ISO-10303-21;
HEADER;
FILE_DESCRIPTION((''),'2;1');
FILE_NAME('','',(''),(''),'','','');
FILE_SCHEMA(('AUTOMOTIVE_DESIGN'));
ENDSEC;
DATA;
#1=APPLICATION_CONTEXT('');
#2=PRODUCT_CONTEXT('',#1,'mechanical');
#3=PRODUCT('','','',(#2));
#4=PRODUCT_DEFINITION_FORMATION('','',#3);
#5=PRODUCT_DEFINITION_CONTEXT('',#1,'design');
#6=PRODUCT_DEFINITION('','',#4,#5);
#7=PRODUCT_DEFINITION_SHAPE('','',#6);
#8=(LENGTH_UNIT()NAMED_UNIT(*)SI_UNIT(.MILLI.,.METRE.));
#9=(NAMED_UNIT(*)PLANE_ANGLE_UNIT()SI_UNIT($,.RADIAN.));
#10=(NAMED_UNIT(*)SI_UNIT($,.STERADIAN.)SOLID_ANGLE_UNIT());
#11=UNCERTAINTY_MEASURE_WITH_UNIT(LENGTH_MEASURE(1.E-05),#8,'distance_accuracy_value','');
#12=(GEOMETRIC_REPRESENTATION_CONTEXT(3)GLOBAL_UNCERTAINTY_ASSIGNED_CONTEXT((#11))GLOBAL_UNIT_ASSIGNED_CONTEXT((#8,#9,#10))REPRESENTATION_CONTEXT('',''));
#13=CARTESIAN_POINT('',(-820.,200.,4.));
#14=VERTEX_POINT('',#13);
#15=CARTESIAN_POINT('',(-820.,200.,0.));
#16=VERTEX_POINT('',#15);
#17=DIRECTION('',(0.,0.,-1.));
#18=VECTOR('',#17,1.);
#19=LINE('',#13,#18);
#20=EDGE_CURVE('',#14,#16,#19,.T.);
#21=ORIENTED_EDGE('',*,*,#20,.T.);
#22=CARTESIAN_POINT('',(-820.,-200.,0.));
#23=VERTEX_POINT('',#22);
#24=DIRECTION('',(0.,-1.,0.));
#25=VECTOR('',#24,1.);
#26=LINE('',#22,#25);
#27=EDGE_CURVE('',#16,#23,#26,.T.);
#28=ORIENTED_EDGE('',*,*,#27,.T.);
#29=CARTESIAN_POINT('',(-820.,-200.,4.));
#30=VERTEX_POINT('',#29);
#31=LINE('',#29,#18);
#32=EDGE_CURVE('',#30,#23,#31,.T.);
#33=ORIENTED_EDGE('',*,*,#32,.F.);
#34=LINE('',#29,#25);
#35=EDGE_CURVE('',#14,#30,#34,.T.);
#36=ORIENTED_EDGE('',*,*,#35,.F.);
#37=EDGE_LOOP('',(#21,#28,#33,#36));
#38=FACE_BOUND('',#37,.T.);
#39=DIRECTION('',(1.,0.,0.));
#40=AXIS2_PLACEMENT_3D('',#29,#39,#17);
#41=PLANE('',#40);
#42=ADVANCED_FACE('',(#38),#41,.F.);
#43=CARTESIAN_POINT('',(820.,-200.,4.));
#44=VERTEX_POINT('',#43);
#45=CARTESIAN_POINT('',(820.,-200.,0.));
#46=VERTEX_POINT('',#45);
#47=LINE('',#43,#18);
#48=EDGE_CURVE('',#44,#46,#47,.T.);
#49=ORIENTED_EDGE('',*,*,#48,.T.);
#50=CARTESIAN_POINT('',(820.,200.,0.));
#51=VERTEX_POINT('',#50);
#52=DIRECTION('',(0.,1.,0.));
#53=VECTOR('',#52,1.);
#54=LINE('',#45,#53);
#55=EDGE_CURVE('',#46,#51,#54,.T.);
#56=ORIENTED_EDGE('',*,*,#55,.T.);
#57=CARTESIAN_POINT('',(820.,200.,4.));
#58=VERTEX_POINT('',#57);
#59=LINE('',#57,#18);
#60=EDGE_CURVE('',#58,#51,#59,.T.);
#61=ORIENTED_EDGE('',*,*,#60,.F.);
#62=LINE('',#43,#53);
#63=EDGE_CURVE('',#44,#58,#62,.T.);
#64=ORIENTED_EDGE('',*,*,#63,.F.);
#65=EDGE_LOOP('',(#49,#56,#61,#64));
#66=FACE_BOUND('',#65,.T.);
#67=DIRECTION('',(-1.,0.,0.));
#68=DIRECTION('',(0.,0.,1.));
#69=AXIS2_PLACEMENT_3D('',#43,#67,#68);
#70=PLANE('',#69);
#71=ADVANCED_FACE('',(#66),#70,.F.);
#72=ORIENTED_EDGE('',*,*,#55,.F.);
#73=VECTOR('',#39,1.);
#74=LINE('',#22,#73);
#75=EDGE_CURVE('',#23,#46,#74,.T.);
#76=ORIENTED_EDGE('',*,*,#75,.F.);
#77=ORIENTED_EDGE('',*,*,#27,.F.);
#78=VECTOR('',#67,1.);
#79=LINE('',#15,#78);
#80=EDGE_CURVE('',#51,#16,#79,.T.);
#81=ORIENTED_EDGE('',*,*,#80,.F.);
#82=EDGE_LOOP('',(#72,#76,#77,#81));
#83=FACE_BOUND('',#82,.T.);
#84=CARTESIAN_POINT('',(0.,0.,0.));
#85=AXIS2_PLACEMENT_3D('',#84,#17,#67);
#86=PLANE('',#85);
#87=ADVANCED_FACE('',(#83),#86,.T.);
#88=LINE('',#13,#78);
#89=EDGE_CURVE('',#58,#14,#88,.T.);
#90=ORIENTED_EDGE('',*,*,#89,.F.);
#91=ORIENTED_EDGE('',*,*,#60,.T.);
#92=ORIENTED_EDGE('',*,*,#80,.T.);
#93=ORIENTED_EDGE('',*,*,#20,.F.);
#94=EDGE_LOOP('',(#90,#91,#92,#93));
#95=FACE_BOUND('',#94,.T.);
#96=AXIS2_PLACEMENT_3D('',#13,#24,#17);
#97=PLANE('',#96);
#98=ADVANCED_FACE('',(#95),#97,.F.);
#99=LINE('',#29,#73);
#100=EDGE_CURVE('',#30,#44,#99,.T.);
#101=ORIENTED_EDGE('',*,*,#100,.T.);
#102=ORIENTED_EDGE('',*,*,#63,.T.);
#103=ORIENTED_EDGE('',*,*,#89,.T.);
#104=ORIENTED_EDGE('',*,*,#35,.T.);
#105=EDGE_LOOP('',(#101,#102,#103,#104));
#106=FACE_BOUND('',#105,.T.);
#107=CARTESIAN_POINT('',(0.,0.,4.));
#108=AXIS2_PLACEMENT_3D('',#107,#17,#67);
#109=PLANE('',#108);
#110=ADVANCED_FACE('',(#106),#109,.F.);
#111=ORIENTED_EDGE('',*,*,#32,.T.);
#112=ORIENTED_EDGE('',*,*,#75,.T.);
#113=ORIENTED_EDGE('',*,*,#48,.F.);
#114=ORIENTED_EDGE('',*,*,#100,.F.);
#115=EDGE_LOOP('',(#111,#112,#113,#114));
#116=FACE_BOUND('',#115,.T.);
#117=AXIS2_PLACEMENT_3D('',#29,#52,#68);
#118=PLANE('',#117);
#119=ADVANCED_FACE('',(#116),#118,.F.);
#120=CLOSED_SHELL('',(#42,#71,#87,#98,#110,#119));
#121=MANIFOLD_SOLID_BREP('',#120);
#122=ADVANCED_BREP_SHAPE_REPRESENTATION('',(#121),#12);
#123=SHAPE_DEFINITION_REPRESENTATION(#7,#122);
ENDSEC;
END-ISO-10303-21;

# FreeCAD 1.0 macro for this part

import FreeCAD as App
import Part
import Sketcher

doc = App.newDocument("Part")
body = doc.addObject("PartDesign::Body", "Body")

# Sketch on XY plane
sketch1 = body.newObject("Sketcher::SketchObject", "Sketch")
sketch1.AttachmentSupport = (doc.getObject("XY_Plane"), [""])
sketch1.MapMode = "FlatFace"
sketch1.addGeometry([
    Part.LineSegment(App.Vector(-820, 200, 0), App.Vector(-820, -200, 0)),
    Part.LineSegment(App.Vector(-820, -200, 0), App.Vector(820, -200, 0)),
    Part.LineSegment(App.Vector(820, -200, 0), App.Vector(820, 200, 0)),
    Part.LineSegment(App.Vector(820, 200, 0), App.Vector(-820, 200, 0)),
], False)
sketch1.addConstraint([
    Sketcher.Constraint("Coincident", 0, 2, 1, 1),
    Sketcher.Constraint("Coincident", 1, 2, 2, 1),
    Sketcher.Constraint("Coincident", 2, 2, 3, 1),
    Sketcher.Constraint("Coincident", 3, 2, 0, 1),
    Sketcher.Constraint("Vertical", 0),
    Sketcher.Constraint("Horizontal", 1),
    Sketcher.Constraint("Vertical", 2),
    Sketcher.Constraint("Horizontal", 3),
    Sketcher.Constraint("Symmetric", 0, 2, 2, 2, -1, 1),
    Sketcher.Constraint("DistanceX", 1, 1, 1, 2, 1640.0),
    Sketcher.Constraint("DistanceY", 0, 2, 0, 1, 400.0),
])
pad1 = body.newObject("PartDesign::Pad", "Pad")
pad1.Profile = sketch1
pad1.Length = 4

doc.recompute()
